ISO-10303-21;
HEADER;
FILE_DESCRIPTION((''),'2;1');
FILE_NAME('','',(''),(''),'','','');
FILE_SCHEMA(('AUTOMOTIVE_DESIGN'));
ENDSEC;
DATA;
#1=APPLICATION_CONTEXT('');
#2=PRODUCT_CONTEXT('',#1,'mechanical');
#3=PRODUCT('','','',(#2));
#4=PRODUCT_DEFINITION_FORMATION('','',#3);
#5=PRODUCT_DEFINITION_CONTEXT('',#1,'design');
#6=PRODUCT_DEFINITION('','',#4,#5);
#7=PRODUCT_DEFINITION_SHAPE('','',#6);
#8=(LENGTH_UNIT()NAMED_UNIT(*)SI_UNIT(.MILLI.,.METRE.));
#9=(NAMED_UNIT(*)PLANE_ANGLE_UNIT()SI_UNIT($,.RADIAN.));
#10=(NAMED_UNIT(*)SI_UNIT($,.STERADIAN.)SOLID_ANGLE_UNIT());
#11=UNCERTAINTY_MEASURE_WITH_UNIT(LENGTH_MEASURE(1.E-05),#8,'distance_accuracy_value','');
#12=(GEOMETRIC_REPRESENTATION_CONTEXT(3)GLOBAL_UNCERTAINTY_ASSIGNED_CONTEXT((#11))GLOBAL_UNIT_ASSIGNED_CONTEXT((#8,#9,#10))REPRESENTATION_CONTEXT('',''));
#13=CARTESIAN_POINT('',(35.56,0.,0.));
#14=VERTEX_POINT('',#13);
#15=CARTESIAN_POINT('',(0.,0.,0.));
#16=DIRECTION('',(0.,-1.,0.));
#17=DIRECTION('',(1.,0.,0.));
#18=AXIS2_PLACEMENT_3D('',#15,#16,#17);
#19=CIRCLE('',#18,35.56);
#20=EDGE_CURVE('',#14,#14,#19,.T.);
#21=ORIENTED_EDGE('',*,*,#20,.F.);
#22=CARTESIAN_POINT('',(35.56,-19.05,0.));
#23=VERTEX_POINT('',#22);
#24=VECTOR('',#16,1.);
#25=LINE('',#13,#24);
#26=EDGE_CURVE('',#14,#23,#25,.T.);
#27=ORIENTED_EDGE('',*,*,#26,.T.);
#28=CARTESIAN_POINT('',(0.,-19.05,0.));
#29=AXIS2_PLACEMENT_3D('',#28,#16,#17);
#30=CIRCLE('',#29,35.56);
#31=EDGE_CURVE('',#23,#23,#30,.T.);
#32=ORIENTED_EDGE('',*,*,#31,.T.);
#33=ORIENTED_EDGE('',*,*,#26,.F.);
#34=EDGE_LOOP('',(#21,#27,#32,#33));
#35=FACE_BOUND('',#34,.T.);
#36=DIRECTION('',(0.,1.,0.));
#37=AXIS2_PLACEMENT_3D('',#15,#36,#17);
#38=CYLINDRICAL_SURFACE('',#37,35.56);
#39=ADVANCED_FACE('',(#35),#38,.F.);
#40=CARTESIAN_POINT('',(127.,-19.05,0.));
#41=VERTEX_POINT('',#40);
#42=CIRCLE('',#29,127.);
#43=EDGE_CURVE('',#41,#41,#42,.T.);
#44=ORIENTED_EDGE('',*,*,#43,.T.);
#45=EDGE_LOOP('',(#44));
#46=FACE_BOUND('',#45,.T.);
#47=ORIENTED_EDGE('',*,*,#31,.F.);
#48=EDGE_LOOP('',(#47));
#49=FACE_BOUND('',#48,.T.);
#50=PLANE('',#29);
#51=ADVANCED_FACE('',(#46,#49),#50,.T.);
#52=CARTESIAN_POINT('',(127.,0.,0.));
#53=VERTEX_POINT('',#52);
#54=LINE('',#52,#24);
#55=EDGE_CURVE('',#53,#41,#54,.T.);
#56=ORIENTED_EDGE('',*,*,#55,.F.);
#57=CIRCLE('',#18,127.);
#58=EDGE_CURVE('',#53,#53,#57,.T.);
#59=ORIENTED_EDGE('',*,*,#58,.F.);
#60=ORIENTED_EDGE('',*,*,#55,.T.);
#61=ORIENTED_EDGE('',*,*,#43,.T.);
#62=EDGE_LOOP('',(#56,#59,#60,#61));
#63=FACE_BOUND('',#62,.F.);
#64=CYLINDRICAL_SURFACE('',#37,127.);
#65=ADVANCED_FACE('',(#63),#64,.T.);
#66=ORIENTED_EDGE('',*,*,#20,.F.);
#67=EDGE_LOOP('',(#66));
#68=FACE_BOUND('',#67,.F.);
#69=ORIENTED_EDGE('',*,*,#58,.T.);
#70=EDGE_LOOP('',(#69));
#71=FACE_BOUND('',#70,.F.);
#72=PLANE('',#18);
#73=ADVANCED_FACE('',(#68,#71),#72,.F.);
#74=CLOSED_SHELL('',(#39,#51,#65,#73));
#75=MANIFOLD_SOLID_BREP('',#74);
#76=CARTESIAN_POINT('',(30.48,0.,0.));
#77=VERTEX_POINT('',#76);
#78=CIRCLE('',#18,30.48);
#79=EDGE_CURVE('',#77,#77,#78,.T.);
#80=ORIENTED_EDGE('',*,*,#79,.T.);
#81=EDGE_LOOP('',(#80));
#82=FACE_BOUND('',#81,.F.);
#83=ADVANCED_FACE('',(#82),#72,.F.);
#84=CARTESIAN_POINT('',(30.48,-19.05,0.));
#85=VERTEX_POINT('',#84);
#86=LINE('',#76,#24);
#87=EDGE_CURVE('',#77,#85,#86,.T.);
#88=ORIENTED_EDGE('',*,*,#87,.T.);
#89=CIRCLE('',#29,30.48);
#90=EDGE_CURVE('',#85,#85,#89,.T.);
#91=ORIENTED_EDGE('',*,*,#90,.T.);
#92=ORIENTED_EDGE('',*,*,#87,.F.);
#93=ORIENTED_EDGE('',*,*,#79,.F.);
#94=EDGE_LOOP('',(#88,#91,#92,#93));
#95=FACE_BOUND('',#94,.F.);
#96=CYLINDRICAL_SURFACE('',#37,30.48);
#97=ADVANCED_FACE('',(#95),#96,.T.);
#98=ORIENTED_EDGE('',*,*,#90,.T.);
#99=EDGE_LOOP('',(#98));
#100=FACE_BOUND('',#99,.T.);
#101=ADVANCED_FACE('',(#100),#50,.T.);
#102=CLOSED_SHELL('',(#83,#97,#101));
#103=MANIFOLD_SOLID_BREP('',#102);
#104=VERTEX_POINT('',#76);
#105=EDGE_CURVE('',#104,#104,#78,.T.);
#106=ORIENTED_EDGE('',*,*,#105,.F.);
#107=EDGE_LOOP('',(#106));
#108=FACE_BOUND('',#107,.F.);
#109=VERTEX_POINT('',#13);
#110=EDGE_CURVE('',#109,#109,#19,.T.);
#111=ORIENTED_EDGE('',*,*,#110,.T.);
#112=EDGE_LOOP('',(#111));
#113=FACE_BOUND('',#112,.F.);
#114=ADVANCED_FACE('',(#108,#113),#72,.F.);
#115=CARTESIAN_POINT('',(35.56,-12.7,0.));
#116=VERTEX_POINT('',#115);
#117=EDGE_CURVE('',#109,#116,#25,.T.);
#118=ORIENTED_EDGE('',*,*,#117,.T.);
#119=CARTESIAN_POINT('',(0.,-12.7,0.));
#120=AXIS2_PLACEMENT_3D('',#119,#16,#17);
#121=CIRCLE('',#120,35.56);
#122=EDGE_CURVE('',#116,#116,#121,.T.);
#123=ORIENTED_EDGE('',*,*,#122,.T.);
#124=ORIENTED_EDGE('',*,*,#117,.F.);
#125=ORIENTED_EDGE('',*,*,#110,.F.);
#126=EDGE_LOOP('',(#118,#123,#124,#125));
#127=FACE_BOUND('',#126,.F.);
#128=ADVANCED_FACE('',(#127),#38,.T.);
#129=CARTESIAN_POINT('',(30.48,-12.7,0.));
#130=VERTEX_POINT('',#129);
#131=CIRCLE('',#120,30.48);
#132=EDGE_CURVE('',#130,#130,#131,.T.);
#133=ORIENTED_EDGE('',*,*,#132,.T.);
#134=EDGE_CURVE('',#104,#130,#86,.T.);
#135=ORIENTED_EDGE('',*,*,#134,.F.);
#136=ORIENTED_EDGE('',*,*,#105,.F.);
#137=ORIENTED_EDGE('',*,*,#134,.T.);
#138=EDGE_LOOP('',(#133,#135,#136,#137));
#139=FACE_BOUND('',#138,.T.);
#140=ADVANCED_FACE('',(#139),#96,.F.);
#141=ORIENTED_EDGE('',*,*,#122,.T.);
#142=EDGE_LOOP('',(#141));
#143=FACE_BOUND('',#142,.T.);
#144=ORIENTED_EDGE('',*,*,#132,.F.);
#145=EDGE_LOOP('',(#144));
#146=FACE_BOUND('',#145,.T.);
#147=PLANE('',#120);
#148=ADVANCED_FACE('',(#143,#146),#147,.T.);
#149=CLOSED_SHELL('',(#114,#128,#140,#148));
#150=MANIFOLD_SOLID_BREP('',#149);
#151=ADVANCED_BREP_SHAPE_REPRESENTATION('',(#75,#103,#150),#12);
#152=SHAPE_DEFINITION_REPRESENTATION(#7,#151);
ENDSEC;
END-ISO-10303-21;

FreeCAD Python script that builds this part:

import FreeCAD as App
import Part
import Sketcher
from FreeCAD import Vector
Q = App.Units.Quantity

doc = App.newDocument("Part")
body = doc.addObject("PartDesign::Body", "Body")
body.AllowCompound = True

sketch1 = body.newObject("Sketcher::SketchObject", "Sketch")
sketch1.AttachmentSupport = (doc.getObject("XZ_Plane"), [""])
sketch1.MapMode = "FlatFace"
sketch1.addGeometry([
    Part.Circle(Vector(0, 0, 0), Vector(0, 0, 1), 127),
    Part.Circle(Vector(0, 0, 0), Vector(0, 0, 1), 35.56),
    Part.Circle(Vector(0, 0, 0), Vector(0, 0, 1), 30.48),
], False)
sketch1.addConstraint([
    Sketcher.Constraint("Coincident", 0, 3, -1, 1),
    Sketcher.Constraint("Coincident", 1, 3, -1, 1),
    Sketcher.Constraint("Coincident", 2, 3, -1, 1),
    Sketcher.Constraint("Diameter", 0, Q("10 in")),
    Sketcher.Constraint("Diameter", 1, Q("2.8 in")),
    Sketcher.Constraint("Diameter", 2, Q("2.4 in")),
])
pad1 = body.newObject("PartDesign::Pad", "Pad")
pad1.Profile = sketch1
pad1.Length = Q("0.75 in")
body2 = doc.addObject("PartDesign::Body", "Body001")

sketch2 = body2.newObject("Sketcher::SketchObject", "Sketch001")
sketch2.AttachmentSupport = (doc.getObject("XZ_Plane001"), [""])
sketch2.MapMode = "FlatFace"
sketch2.addGeometry([
    Part.Circle(Vector(0, 0, 0), Vector(0, 0, 1), 35.56),
    Part.Circle(Vector(0, 0, 0), Vector(0, 0, 1), 30.48),
], False)
sketch2.addConstraint([
    Sketcher.Constraint("Coincident", 0, 3, -1, 1),
    Sketcher.Constraint("Coincident", 1, 3, -1, 1),
    Sketcher.Constraint("Diameter", 0, Q("2.8 in")),
    Sketcher.Constraint("Diameter", 1, Q("2.4 in")),
])
pad2 = body2.newObject("PartDesign::Pad", "Pad001")
pad2.Profile = sketch2
pad2.Length = Q("0.5 in")

doc.recompute()
